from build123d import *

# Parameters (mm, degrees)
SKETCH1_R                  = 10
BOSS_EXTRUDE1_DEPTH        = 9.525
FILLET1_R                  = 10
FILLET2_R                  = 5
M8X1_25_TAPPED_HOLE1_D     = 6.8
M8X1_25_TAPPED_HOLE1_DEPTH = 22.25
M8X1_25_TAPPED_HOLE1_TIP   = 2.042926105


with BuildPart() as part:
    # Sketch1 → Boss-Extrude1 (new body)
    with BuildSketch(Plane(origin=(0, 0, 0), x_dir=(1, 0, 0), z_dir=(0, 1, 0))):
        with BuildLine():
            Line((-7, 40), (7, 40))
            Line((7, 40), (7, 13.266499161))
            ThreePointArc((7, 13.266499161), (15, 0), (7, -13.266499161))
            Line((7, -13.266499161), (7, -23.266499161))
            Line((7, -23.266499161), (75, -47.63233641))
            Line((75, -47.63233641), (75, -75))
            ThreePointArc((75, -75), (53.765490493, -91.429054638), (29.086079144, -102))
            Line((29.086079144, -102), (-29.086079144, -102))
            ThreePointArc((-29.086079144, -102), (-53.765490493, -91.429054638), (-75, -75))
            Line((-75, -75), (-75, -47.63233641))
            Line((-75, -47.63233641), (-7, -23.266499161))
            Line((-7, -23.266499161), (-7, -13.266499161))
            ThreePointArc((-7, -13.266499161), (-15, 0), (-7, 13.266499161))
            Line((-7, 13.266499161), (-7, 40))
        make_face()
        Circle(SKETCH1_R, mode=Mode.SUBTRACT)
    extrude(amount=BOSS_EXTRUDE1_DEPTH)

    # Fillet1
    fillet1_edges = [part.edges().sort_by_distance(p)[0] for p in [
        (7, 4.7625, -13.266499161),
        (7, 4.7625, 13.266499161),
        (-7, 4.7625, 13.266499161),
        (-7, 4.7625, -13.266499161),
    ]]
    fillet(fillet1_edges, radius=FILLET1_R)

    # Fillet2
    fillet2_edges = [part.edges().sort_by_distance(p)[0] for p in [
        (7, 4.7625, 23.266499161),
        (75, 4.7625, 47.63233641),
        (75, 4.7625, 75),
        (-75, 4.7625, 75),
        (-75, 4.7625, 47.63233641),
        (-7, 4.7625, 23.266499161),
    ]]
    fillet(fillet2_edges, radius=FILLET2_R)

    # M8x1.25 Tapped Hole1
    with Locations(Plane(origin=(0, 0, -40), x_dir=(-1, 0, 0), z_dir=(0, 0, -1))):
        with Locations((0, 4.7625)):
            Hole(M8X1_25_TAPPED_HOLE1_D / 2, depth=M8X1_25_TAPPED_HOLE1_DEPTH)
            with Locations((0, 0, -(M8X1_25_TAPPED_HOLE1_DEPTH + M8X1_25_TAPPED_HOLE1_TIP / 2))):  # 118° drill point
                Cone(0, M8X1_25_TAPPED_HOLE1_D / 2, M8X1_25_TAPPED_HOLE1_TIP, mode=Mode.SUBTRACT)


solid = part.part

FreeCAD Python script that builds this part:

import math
import FreeCAD as App
import Part
import Sketcher

V = App.Vector


def edges_at(feature, points):
    """Names of the edges that pass closest to the given points."""
    edges = feature.Shape.Edges
    near = lambda p: min(range(len(edges)), key=lambda i: edges[i].distToShape(Part.Vertex(*p))[0])
    return sorted({f"Edge{near(p) + 1}" for p in points})

doc = App.newDocument("Part")
body = doc.addObject("PartDesign::Body", "Body")

# Sketch on XZ plane
sketch1 = body.newObject("Sketcher::SketchObject", "Sketch")
sketch1.AttachmentSupport = (doc.getObject("XZ_Plane"), [""])
sketch1.MapMode = "FlatFace"
sketch1.addGeometry([
    Part.LineSegment(V(7, -40, 0), V(-7, -40, 0)),  # 0
    Part.LineSegment(V(-7, -40, 0), V(-7, -13.266499, 0)),  # 1
    Part.ArcOfCircle(Part.Circle(V(0, 0, 0), V(0, 0, 1), 15), math.radians(117.818139), math.radians(242.181861)),  # 2
    Part.LineSegment(V(-7, 13.266499, 0), V(-7, 23.266499, 0)),  # 3
    Part.LineSegment(V(-7, 23.266499, 0), V(-75, 47.632336, 0)),  # 4
    Part.LineSegment(V(-75, 47.632336, 0), V(-75, 75, 0)),  # 5
    Part.ArcOfCircle(Part.Circle(V(0, 0, 0), V(0, 0, 1), 106.066017), math.radians(105.915905), math.radians(135)),  # 6
    Part.LineSegment(V(-29.086079, 102, 0), V(29.086079, 102, 0)),  # 7
    Part.ArcOfCircle(Part.Circle(V(0, 0, 0), V(0, 0, 1), 106.066017), math.radians(45), math.radians(74.084095)),  # 8
    Part.LineSegment(V(75, 75, 0), V(75, 47.632336, 0)),  # 9
    Part.LineSegment(V(75, 47.632336, 0), V(7, 23.266499, 0)),  # 10
    Part.LineSegment(V(7, 23.266499, 0), V(7, 13.266499, 0)),  # 11
    Part.ArcOfCircle(Part.Circle(V(0, 0, 0), V(0, 0, 1), 15), math.radians(-62.181861), math.radians(62.181861)),  # 12
    Part.LineSegment(V(7, -13.266499, 0), V(7, -40, 0)),  # 13
    Part.Circle(V(0, 0, 0), V(0, 0, 1), 10),  # 14
], False)
sketch1.addConstraint([
    Sketcher.Constraint("Coincident", 0, 2, 1, 1),
    Sketcher.Constraint("Coincident", 1, 2, 2, 2),
    Sketcher.Constraint("Coincident", 2, 1, 3, 1),
    Sketcher.Constraint("Coincident", 3, 2, 4, 1),
    Sketcher.Constraint("Coincident", 4, 2, 5, 1),
    Sketcher.Constraint("Coincident", 5, 2, 6, 2),
    Sketcher.Constraint("Coincident", 6, 1, 7, 1),
    Sketcher.Constraint("Coincident", 7, 2, 8, 2),
    Sketcher.Constraint("Coincident", 8, 1, 9, 1),
    Sketcher.Constraint("Coincident", 9, 2, 10, 1),
    Sketcher.Constraint("Coincident", 10, 2, 11, 1),
    Sketcher.Constraint("Coincident", 11, 2, 12, 2),
    Sketcher.Constraint("Coincident", 12, 1, 13, 1),
    Sketcher.Constraint("Coincident", 13, 2, 0, 1),
    Sketcher.Constraint("Horizontal", 0),
    Sketcher.Constraint("Vertical", 1),
    Sketcher.Constraint("Vertical", 3),
    Sketcher.Constraint("Vertical", 5),
    Sketcher.Constraint("Horizontal", 7),
    Sketcher.Constraint("Vertical", 9),
    Sketcher.Constraint("Vertical", 11),
    Sketcher.Constraint("Vertical", 13),
    Sketcher.Constraint("Coincident", 2, 3, -1, 1),
    Sketcher.Constraint("Coincident", 6, 3, -1, 1),
    Sketcher.Constraint("Coincident", 8, 3, -1, 1),
    Sketcher.Constraint("Coincident", 12, 3, -1, 1),
    Sketcher.Constraint("Coincident", 14, 3, -1, 1),
    Sketcher.Constraint("Equal", 6, 8),
    Sketcher.Constraint("Equal", 2, 12),
    Sketcher.Constraint("Symmetric", 4, 2, 9, 2, -2),
    Sketcher.Constraint("Symmetric", 3, 2, 10, 2, -2),
    Sketcher.Constraint("Horizontal", 1, 2, 12, 1),
    Sketcher.Constraint("Vertical", 1, 2, 2, 1),
    Sketcher.Constraint("Diameter", 14, 20.0),
    Sketcher.Constraint("Radius", 2, 15.0),
    Sketcher.Constraint("DistanceX", 0, 2, 0, 1, 14.0),
    Sketcher.Constraint("DistanceY", 3, 1, 3, 2, 10.0),
    Sketcher.Constraint("DistanceY", 0, 2, -1, 1, 40.0),
    Sketcher.Constraint("DistanceX", 4, 2, -1, 1, 75.0),
    Sketcher.Constraint("DistanceY", -1, 1, 5, 2, 75.0),
    Sketcher.Constraint("DistanceY", -1, 1, 6, 1, 102.0),
    Sketcher.Constraint("DistanceY", 5, 1, 5, 2, 27.367664),
])
pad1 = body.newObject("PartDesign::Pad", "Pad")
pad1.Profile = sketch1
pad1.Length = 9.525
pad1.Reversed = True
doc.recompute()

fillet = body.newObject("PartDesign::Fillet", "Fillet")
fillet.Base = (pad1, edges_at(pad1, [
    (7, 4.763, -13.266),
    (7, 4.763, 13.266),
    (-7, 4.763, 13.266),
    (-7, 4.763, -13.266),
]))
fillet.Radius = 10
doc.recompute()

fillet2 = body.newObject("PartDesign::Fillet", "Fillet001")
fillet2.Base = (fillet, edges_at(fillet, [
    (7, 4.763, 23.266),
    (75, 4.763, 47.632),
    (75, 4.763, 75),
    (-75, 4.763, 75),
    (-75, 4.763, 47.632),
    (-7, 4.763, 23.266),
]))
fillet2.Radius = 5

# Sketch on XY plane
sketch2 = body.newObject("Sketcher::SketchObject", "Sketch001")
sketch2.AttachmentSupport = (doc.getObject("XY_Plane"), [""])
sketch2.MapMode = "FlatFace"
sketch2.AttachmentOffset = App.Placement(V(0, 0, -40), App.Rotation())
sketch2.addGeometry(Part.Circle(V(0, 4.7625, 0), V(0, 0, 1), 3.4), False)
sketch2.addConstraint([
    Sketcher.Constraint("PointOnObject", 0, 3, -2),
    Sketcher.Constraint("Diameter", 0, 6.8),
    Sketcher.Constraint("DistanceY", -1, 1, 0, 3, 4.7625),
])
doc.recompute()
hole = body.newObject("PartDesign::Hole", "Hole")
hole.Profile = sketch2
hole.ThreadType = "None"
hole.Diameter = 6.8
hole.DepthType = "Dimension"
hole.Depth = 22.25
hole.DrillPoint = "Angled"
hole.DrillPointAngle = 118
hole.Reversed = True

doc.recompute()
